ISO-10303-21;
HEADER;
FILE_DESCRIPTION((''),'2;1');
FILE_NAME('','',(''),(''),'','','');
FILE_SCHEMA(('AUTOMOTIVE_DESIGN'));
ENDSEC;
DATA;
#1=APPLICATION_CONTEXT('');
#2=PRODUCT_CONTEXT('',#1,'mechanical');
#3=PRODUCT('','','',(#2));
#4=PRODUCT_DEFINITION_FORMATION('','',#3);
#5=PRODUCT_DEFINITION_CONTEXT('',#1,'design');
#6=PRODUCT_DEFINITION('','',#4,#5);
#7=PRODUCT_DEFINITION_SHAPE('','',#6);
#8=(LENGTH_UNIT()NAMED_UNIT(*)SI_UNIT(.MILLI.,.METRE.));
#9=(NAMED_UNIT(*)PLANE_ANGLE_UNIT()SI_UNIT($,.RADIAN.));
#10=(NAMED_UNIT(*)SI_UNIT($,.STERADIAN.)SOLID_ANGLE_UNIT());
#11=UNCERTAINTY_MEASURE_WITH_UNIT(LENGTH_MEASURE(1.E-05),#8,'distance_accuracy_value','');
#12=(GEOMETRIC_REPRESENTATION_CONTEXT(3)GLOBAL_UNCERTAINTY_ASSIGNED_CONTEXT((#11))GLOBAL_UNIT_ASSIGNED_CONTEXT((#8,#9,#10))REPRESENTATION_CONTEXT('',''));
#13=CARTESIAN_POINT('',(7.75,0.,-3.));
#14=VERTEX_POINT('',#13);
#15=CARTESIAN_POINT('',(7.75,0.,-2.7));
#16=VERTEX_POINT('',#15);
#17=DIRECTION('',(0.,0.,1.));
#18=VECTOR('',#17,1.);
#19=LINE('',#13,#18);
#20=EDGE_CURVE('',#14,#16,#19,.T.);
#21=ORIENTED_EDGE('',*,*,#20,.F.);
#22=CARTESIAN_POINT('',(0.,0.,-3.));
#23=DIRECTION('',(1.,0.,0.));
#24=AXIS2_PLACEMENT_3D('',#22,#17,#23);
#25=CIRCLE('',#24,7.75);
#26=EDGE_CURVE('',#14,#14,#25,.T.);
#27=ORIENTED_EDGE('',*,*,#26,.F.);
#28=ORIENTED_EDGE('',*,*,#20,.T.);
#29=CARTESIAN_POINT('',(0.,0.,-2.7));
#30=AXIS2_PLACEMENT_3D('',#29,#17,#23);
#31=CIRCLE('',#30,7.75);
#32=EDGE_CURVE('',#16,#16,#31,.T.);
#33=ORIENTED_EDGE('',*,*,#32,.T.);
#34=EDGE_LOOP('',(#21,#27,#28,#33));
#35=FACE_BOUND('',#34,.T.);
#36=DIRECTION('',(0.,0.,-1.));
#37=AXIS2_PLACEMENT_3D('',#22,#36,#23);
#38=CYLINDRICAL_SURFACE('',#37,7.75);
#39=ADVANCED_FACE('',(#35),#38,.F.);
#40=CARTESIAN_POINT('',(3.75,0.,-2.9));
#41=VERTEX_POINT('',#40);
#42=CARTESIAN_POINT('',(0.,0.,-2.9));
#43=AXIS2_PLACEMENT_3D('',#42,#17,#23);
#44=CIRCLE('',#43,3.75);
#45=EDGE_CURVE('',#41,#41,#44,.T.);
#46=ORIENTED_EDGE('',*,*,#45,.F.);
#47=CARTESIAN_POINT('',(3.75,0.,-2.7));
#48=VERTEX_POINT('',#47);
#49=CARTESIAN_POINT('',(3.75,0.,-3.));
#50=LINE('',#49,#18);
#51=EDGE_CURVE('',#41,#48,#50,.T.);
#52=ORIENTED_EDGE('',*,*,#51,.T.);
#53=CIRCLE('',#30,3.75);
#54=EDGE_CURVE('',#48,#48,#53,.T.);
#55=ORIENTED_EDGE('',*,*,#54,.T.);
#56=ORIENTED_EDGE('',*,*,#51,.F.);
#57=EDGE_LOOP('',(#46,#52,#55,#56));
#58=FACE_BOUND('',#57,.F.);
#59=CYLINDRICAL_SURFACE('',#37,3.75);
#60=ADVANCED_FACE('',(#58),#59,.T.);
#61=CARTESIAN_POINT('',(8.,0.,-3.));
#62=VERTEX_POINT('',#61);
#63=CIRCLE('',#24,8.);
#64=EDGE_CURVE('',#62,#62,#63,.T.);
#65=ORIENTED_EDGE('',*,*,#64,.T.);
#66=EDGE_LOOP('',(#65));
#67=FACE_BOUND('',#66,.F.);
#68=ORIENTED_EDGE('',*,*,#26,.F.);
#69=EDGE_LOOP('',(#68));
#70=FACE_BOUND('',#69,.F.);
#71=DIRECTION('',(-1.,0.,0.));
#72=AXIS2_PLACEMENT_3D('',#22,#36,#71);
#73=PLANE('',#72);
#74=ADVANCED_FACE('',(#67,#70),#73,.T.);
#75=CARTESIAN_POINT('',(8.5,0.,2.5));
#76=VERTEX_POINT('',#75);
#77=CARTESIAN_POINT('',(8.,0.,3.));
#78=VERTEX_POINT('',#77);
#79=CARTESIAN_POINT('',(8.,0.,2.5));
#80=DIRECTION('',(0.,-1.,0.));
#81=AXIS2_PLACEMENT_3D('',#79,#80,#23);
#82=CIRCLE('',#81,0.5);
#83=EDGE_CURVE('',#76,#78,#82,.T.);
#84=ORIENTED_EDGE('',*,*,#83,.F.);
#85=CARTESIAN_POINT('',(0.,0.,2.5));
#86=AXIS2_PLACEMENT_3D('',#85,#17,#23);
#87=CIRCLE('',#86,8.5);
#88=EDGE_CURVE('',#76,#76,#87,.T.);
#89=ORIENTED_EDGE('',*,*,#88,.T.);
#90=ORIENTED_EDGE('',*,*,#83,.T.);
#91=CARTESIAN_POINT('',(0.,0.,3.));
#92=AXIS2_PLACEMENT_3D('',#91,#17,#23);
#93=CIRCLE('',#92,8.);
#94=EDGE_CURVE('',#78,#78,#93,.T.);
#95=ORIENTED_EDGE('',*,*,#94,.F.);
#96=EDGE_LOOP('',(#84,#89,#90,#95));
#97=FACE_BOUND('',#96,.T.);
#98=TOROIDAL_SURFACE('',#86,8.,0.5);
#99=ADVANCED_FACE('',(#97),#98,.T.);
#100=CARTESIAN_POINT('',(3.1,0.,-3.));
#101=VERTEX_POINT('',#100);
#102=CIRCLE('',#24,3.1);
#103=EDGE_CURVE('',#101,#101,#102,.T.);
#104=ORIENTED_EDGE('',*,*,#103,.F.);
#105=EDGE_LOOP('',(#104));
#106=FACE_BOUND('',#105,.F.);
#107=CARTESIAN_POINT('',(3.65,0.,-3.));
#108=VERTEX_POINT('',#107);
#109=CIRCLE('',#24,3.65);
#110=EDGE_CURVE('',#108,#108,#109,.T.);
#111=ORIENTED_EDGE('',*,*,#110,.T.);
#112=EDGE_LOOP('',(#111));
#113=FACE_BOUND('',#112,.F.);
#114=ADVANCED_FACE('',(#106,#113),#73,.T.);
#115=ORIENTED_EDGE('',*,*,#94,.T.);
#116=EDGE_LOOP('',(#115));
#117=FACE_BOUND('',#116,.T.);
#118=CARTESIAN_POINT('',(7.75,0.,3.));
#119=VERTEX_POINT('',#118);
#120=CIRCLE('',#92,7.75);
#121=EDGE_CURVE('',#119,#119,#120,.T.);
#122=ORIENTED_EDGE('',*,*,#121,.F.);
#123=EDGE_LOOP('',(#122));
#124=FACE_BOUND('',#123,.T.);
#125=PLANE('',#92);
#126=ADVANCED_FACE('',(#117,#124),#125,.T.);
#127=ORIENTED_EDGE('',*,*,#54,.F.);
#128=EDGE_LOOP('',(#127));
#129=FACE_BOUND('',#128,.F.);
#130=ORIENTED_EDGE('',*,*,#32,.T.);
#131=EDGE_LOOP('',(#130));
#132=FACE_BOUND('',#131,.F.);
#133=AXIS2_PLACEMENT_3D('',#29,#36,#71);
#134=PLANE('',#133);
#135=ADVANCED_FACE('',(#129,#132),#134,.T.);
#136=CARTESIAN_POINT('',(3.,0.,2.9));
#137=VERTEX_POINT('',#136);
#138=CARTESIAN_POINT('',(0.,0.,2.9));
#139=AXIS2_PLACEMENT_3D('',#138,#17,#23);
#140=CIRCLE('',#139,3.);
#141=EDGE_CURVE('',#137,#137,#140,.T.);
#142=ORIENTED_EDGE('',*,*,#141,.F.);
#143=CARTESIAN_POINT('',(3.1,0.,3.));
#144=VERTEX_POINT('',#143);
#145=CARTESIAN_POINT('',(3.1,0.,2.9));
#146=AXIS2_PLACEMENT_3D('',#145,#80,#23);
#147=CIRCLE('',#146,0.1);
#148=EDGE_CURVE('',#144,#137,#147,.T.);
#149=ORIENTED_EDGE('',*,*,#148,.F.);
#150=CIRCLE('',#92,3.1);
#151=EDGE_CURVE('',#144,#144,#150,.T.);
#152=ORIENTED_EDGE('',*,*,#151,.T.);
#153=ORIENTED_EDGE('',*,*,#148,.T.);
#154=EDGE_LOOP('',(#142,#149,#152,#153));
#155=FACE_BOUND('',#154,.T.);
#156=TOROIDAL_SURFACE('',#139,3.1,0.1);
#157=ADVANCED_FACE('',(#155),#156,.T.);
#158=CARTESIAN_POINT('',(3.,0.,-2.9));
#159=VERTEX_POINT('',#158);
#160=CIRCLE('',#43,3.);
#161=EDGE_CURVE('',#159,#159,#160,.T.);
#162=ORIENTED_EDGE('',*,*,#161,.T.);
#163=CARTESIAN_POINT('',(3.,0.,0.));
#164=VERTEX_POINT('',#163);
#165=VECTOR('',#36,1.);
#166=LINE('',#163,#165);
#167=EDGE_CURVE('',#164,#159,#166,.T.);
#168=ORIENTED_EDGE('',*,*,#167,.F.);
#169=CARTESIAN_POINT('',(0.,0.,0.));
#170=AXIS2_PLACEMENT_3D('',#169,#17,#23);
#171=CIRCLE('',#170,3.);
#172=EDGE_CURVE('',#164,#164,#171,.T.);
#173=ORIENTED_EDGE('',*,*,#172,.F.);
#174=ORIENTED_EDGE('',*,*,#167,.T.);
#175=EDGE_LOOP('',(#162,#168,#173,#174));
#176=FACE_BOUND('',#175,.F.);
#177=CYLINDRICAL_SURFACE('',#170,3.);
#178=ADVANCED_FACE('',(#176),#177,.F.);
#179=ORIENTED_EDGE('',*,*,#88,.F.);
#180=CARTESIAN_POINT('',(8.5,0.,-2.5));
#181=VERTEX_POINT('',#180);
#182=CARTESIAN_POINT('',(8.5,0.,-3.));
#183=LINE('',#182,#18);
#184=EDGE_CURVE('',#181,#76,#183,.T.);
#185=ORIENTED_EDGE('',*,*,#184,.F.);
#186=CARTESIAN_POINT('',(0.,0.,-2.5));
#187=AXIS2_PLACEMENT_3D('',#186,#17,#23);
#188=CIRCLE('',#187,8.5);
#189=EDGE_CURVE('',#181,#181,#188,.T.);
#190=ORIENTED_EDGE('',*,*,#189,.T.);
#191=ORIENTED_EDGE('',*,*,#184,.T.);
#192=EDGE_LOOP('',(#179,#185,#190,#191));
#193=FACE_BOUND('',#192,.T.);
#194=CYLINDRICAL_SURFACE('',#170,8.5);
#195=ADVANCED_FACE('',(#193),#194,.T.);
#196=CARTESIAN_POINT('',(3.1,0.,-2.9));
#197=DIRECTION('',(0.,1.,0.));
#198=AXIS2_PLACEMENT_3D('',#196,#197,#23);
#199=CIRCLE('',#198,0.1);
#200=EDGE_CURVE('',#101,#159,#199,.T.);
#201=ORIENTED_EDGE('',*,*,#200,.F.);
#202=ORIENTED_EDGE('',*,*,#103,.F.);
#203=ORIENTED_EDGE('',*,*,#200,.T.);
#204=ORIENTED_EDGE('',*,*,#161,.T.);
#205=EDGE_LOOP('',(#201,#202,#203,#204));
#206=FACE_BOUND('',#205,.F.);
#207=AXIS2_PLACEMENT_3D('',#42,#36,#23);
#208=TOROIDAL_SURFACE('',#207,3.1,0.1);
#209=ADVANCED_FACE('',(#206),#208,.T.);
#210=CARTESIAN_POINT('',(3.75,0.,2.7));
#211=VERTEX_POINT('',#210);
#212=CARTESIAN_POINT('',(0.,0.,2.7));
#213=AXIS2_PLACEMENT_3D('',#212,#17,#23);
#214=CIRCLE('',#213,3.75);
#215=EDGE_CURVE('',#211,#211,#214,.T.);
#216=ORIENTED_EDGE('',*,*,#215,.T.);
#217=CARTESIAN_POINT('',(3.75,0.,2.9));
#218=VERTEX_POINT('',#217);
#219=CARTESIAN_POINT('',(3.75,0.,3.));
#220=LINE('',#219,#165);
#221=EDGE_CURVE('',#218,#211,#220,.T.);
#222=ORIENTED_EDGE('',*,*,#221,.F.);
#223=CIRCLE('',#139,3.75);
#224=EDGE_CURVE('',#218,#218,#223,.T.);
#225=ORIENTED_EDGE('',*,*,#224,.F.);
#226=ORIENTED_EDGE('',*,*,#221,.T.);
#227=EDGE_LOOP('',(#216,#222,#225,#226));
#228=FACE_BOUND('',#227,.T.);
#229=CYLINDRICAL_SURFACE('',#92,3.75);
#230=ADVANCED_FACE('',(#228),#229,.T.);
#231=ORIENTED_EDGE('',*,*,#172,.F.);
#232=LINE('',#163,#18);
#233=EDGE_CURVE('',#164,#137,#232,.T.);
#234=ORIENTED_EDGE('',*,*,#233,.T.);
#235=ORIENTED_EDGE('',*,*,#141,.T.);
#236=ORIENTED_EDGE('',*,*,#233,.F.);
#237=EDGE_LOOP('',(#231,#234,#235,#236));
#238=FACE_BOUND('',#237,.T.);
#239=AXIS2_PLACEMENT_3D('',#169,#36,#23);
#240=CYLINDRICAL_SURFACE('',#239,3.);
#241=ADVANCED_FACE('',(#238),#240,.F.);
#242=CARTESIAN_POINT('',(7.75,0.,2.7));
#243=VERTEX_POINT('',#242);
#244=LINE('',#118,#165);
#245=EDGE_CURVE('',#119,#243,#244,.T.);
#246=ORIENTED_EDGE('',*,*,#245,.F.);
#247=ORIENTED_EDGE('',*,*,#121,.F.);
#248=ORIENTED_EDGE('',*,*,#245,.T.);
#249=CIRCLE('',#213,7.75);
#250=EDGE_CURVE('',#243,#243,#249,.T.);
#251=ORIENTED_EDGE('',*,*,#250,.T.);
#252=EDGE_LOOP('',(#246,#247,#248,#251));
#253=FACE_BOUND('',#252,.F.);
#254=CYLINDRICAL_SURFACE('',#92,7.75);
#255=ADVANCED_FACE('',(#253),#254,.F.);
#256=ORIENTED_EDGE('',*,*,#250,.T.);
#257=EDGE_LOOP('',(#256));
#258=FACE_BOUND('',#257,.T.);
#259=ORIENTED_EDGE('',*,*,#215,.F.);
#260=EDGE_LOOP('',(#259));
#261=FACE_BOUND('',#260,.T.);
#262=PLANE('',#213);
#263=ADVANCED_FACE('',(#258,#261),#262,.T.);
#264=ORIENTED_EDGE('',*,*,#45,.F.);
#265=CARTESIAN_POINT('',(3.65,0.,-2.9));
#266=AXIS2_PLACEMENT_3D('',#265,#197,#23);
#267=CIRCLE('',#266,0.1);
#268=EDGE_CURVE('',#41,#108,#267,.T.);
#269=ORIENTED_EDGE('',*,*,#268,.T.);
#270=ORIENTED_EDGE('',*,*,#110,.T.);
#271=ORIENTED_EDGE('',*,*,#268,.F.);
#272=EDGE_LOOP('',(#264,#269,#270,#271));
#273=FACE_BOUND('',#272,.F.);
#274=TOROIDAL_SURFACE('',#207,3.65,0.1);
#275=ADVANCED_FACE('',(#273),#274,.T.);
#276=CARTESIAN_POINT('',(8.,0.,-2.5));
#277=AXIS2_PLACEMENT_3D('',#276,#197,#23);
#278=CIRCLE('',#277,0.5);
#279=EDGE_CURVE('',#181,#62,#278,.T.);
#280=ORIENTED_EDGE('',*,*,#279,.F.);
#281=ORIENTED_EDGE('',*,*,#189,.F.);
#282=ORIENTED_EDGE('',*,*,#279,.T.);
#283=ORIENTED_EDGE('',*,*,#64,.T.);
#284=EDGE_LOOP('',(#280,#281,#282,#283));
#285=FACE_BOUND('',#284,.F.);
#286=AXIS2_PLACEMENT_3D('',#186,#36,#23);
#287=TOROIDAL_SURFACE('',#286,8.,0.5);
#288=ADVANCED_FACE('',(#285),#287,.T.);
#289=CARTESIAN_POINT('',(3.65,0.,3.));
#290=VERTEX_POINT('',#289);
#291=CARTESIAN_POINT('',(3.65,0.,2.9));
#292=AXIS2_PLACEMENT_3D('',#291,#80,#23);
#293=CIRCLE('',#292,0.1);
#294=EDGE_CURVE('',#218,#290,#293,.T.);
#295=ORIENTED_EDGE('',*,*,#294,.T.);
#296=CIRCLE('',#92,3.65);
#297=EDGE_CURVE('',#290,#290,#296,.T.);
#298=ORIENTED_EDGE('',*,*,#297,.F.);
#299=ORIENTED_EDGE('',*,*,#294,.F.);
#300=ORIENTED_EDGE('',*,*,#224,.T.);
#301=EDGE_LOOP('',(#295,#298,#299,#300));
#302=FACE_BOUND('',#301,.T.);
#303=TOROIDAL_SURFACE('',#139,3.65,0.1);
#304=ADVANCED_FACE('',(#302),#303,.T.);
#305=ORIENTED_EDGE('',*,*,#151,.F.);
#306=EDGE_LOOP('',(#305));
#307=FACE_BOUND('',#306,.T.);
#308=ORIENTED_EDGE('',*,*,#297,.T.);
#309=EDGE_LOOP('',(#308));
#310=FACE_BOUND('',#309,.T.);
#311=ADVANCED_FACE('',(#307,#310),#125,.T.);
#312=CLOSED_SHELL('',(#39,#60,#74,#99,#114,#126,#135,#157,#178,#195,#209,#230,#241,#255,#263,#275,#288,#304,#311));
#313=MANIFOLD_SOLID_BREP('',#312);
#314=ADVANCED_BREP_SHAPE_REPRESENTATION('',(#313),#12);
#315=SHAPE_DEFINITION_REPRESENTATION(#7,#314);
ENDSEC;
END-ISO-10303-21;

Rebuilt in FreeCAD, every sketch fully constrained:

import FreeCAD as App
import Part
import Sketcher

V = App.Vector


def edges_at(feature, points):
    """Names of the edges that pass closest to the given points."""
    edges = feature.Shape.Edges
    near = lambda p: min(range(len(edges)), key=lambda i: edges[i].distToShape(Part.Vertex(*p))[0])
    return sorted({f"Edge{near(p) + 1}" for p in points})

doc = App.newDocument("Part")
body = doc.addObject("PartDesign::Body", "Body")

# Sketch on XY plane
sketch1 = doc.addObject("Sketcher::SketchObject", "Sketch")
body.addObject(sketch1)
sketch1.AttachmentSupport = (doc.XY_Plane, [""])
sketch1.MapMode = "FlatFace"
sketch1.addGeometry(Part.Circle(V(0, 0, 0), V(0, 0, 1), 8.5), False)
sketch1.addGeometry(Part.Circle(V(0, 0, 0), V(0, 0, 1), 3), False)
sketch1.addConstraint(Sketcher.Constraint("Coincident", 0, 3, -1, 1))
sketch1.addConstraint(Sketcher.Constraint("Coincident", 1, 3, -1, 1))
sketch1.addConstraint(Sketcher.Constraint("Diameter", 0, 17.0))
sketch1.addConstraint(Sketcher.Constraint("Diameter", 1, 6.0))
pad1 = doc.addObject("PartDesign::Pad", "Pad")
body.addObject(pad1)
pad1.Profile = sketch1
pad1.Length = 3

# Sketch on XY plane
sketch2 = doc.addObject("Sketcher::SketchObject", "Sketch001")
body.addObject(sketch2)
sketch2.AttachmentSupport = (doc.XY_Plane, [""])
sketch2.MapMode = "FlatFace"
sketch2.AttachmentOffset = App.Placement(V(0, 0, 3), App.Rotation())
sketch2.addGeometry(Part.Circle(V(0, 0, 0), V(0, 0, 1), 7.8), False)
sketch2.addGeometry(Part.Circle(V(0, 0, 0), V(0, 0, 1), 3.8), False)
sketch2.addConstraint(Sketcher.Constraint("Coincident", 0, 3, -1, 1))
sketch2.addConstraint(Sketcher.Constraint("Coincident", 1, 3, -1, 1))
sketch2.addConstraint(Sketcher.Constraint("Diameter", 0, 15.5))
sketch2.addConstraint(Sketcher.Constraint("Diameter", 1, 7.5))
pocket1 = doc.addObject("PartDesign::Pocket", "Pocket")
body.addObject(pocket1)
pocket1.Profile = sketch2
pocket1.Length = 0.3
doc.recompute()

mirrored = doc.addObject("PartDesign::Mirrored", "Mirrored")
body.addObject(mirrored)
mirrored.Originals = [pad1, pocket1]
mirrored.MirrorPlane = (doc.XY_Plane, [""])
body.Tip = mirrored
doc.recompute()

fillet = doc.addObject("PartDesign::Fillet", "Fillet")
body.addObject(fillet)
fillet.Base = (mirrored, edges_at(mirrored, [(-8.5, 0, -3), (-8.5, 0, 3)]))
fillet.Radius = 0.5
doc.recompute()

fillet2 = doc.addObject("PartDesign::Fillet", "Fillet001")
body.addObject(fillet2)
fillet2.Base = (fillet, edges_at(fillet, [
    (-3, 0, -3),
    (-3, 0, 3),
    (-3.75, 0, -3),
    (-3.75, 0, 3),
]))
fillet2.Radius = 0.1

doc.recompute()
